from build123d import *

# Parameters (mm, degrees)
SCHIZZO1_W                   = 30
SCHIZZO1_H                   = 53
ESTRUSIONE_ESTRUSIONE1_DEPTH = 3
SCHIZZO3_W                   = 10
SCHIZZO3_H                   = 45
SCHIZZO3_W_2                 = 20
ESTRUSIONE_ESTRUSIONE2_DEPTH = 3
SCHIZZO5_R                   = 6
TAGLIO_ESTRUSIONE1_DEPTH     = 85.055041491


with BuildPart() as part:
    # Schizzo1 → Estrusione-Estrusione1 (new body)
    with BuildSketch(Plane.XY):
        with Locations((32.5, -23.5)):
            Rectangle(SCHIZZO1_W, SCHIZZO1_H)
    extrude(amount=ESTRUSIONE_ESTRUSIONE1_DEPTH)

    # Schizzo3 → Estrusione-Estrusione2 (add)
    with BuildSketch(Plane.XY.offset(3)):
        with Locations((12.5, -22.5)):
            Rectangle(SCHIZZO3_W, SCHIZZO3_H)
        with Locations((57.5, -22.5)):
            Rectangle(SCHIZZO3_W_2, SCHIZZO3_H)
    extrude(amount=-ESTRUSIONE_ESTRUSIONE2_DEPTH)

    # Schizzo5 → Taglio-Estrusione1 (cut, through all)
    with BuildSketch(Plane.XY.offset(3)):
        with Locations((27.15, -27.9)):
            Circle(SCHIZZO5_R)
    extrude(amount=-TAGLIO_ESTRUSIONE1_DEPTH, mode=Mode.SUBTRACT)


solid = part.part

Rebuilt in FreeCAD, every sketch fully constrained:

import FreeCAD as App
import Part
import Sketcher

V = App.Vector

doc = App.newDocument("Part")
body = doc.addObject("PartDesign::Body", "Body")

sketch1 = body.newObject("Sketcher::SketchObject", "Sketch")
sketch1.AttachmentSupport = (doc.getObject("XY_Plane"), [""])
sketch1.MapMode = "FlatFace"
sketch1.addGeometry([
    Part.LineSegment(V(18, 3, 0), V(18, -50, 0)),
    Part.LineSegment(V(18, -50, 0), V(48, -50, 0)),
    Part.LineSegment(V(48, -50, 0), V(48, 3, 0)),
    Part.LineSegment(V(48, 3, 0), V(18, 3, 0)),
], False)
sketch1.addConstraint([
    Sketcher.Constraint("Coincident", 0, 2, 1, 1),
    Sketcher.Constraint("Coincident", 1, 2, 2, 1),
    Sketcher.Constraint("Coincident", 2, 2, 3, 1),
    Sketcher.Constraint("Coincident", 3, 2, 0, 1),
    Sketcher.Constraint("Vertical", 0),
    Sketcher.Constraint("Horizontal", 1),
    Sketcher.Constraint("Vertical", 2),
    Sketcher.Constraint("Horizontal", 3),
    Sketcher.Constraint("DistanceX", 1, 1, 1, 2, 30.0),
    Sketcher.Constraint("DistanceY", 0, 2, 0, 1, 53.0),
    Sketcher.Constraint("DistanceY", 0, 2, -1, 1, 50.0),
    Sketcher.Constraint("DistanceX", -1, 1, 0, 2, 17.5),
])
pad1 = body.newObject("PartDesign::Pad", "Pad")
pad1.Profile = sketch1
pad1.Length = 3

sketch2 = body.newObject("Sketcher::SketchObject", "Sketch001")
sketch2.AttachmentSupport = (doc.getObject("XY_Plane"), [""])
sketch2.MapMode = "FlatFace"
sketch2.AttachmentOffset = App.Placement(V(0, 0, 3), App.Rotation())
sketch2.addGeometry([
    Part.LineSegment(V(8, 0, 0), V(8, -45, 0)),
    Part.LineSegment(V(8, -45, 0), V(18, -45, 0)),
    Part.LineSegment(V(18, -45, 0), V(18, 0, 0)),
    Part.LineSegment(V(18, 0, 0), V(8, 0, 0)),
    Part.LineSegment(V(48, 0, 0), V(48, -45, 0)),
    Part.LineSegment(V(48, -45, 0), V(68, -45, 0)),
    Part.LineSegment(V(68, -45, 0), V(68, 0, 0)),
    Part.LineSegment(V(68, 0, 0), V(48, 0, 0)),
], False)
sketch2.addConstraint([
    Sketcher.Constraint("Coincident", 0, 2, 1, 1),
    Sketcher.Constraint("Coincident", 1, 2, 2, 1),
    Sketcher.Constraint("Coincident", 2, 2, 3, 1),
    Sketcher.Constraint("Coincident", 3, 2, 0, 1),
    Sketcher.Constraint("Coincident", 4, 2, 5, 1),
    Sketcher.Constraint("Coincident", 5, 2, 6, 1),
    Sketcher.Constraint("Coincident", 6, 2, 7, 1),
    Sketcher.Constraint("Coincident", 7, 2, 4, 1),
    Sketcher.Constraint("Vertical", 0),
    Sketcher.Constraint("Horizontal", 1),
    Sketcher.Constraint("Vertical", 2),
    Sketcher.Constraint("Horizontal", 3),
    Sketcher.Constraint("Vertical", 4),
    Sketcher.Constraint("Horizontal", 5),
    Sketcher.Constraint("Vertical", 6),
    Sketcher.Constraint("Horizontal", 7),
    Sketcher.Constraint("PointOnObject", 2, 2, -1),
    Sketcher.Constraint("PointOnObject", 6, 2, -1),
    Sketcher.Constraint("Horizontal", 1, 2, 4, 2),
    Sketcher.Constraint("DistanceX", 1, 1, 1, 2, 10.0),
    Sketcher.Constraint("DistanceX", 5, 1, 5, 2, 20.0),
    Sketcher.Constraint("DistanceY", 0, 2, 0, 1, 45.0),
    Sketcher.Constraint("DistanceX", 1, 2, 4, 2, 30.0),
    Sketcher.Constraint("DistanceX", -1, 1, 0, 2, 7.5),
])
pad2 = body.newObject("PartDesign::Pad", "Pad001")
pad2.Profile = sketch2
pad2.Length = 3
pad2.Reversed = True

sketch3 = body.newObject("Sketcher::SketchObject", "Sketch002")
sketch3.AttachmentSupport = (doc.getObject("XY_Plane"), [""])
sketch3.MapMode = "FlatFace"
sketch3.AttachmentOffset = App.Placement(V(0, 0, 3), App.Rotation())
sketch3.addGeometry(Part.Circle(V(27, -28, 0), V(0, 0, 1), 6), False)
sketch3.addConstraint([
    Sketcher.Constraint("Diameter", 0, 12.0),
    Sketcher.Constraint("DistanceY", 0, 3, -1, 1, 27.9),
    Sketcher.Constraint("DistanceX", -1, 1, 0, 3, 27.15),
])
pocket1 = body.newObject("PartDesign::Pocket", "Pocket")
pocket1.Profile = sketch3
pocket1.Type = "ThroughAll"

doc.recompute()
